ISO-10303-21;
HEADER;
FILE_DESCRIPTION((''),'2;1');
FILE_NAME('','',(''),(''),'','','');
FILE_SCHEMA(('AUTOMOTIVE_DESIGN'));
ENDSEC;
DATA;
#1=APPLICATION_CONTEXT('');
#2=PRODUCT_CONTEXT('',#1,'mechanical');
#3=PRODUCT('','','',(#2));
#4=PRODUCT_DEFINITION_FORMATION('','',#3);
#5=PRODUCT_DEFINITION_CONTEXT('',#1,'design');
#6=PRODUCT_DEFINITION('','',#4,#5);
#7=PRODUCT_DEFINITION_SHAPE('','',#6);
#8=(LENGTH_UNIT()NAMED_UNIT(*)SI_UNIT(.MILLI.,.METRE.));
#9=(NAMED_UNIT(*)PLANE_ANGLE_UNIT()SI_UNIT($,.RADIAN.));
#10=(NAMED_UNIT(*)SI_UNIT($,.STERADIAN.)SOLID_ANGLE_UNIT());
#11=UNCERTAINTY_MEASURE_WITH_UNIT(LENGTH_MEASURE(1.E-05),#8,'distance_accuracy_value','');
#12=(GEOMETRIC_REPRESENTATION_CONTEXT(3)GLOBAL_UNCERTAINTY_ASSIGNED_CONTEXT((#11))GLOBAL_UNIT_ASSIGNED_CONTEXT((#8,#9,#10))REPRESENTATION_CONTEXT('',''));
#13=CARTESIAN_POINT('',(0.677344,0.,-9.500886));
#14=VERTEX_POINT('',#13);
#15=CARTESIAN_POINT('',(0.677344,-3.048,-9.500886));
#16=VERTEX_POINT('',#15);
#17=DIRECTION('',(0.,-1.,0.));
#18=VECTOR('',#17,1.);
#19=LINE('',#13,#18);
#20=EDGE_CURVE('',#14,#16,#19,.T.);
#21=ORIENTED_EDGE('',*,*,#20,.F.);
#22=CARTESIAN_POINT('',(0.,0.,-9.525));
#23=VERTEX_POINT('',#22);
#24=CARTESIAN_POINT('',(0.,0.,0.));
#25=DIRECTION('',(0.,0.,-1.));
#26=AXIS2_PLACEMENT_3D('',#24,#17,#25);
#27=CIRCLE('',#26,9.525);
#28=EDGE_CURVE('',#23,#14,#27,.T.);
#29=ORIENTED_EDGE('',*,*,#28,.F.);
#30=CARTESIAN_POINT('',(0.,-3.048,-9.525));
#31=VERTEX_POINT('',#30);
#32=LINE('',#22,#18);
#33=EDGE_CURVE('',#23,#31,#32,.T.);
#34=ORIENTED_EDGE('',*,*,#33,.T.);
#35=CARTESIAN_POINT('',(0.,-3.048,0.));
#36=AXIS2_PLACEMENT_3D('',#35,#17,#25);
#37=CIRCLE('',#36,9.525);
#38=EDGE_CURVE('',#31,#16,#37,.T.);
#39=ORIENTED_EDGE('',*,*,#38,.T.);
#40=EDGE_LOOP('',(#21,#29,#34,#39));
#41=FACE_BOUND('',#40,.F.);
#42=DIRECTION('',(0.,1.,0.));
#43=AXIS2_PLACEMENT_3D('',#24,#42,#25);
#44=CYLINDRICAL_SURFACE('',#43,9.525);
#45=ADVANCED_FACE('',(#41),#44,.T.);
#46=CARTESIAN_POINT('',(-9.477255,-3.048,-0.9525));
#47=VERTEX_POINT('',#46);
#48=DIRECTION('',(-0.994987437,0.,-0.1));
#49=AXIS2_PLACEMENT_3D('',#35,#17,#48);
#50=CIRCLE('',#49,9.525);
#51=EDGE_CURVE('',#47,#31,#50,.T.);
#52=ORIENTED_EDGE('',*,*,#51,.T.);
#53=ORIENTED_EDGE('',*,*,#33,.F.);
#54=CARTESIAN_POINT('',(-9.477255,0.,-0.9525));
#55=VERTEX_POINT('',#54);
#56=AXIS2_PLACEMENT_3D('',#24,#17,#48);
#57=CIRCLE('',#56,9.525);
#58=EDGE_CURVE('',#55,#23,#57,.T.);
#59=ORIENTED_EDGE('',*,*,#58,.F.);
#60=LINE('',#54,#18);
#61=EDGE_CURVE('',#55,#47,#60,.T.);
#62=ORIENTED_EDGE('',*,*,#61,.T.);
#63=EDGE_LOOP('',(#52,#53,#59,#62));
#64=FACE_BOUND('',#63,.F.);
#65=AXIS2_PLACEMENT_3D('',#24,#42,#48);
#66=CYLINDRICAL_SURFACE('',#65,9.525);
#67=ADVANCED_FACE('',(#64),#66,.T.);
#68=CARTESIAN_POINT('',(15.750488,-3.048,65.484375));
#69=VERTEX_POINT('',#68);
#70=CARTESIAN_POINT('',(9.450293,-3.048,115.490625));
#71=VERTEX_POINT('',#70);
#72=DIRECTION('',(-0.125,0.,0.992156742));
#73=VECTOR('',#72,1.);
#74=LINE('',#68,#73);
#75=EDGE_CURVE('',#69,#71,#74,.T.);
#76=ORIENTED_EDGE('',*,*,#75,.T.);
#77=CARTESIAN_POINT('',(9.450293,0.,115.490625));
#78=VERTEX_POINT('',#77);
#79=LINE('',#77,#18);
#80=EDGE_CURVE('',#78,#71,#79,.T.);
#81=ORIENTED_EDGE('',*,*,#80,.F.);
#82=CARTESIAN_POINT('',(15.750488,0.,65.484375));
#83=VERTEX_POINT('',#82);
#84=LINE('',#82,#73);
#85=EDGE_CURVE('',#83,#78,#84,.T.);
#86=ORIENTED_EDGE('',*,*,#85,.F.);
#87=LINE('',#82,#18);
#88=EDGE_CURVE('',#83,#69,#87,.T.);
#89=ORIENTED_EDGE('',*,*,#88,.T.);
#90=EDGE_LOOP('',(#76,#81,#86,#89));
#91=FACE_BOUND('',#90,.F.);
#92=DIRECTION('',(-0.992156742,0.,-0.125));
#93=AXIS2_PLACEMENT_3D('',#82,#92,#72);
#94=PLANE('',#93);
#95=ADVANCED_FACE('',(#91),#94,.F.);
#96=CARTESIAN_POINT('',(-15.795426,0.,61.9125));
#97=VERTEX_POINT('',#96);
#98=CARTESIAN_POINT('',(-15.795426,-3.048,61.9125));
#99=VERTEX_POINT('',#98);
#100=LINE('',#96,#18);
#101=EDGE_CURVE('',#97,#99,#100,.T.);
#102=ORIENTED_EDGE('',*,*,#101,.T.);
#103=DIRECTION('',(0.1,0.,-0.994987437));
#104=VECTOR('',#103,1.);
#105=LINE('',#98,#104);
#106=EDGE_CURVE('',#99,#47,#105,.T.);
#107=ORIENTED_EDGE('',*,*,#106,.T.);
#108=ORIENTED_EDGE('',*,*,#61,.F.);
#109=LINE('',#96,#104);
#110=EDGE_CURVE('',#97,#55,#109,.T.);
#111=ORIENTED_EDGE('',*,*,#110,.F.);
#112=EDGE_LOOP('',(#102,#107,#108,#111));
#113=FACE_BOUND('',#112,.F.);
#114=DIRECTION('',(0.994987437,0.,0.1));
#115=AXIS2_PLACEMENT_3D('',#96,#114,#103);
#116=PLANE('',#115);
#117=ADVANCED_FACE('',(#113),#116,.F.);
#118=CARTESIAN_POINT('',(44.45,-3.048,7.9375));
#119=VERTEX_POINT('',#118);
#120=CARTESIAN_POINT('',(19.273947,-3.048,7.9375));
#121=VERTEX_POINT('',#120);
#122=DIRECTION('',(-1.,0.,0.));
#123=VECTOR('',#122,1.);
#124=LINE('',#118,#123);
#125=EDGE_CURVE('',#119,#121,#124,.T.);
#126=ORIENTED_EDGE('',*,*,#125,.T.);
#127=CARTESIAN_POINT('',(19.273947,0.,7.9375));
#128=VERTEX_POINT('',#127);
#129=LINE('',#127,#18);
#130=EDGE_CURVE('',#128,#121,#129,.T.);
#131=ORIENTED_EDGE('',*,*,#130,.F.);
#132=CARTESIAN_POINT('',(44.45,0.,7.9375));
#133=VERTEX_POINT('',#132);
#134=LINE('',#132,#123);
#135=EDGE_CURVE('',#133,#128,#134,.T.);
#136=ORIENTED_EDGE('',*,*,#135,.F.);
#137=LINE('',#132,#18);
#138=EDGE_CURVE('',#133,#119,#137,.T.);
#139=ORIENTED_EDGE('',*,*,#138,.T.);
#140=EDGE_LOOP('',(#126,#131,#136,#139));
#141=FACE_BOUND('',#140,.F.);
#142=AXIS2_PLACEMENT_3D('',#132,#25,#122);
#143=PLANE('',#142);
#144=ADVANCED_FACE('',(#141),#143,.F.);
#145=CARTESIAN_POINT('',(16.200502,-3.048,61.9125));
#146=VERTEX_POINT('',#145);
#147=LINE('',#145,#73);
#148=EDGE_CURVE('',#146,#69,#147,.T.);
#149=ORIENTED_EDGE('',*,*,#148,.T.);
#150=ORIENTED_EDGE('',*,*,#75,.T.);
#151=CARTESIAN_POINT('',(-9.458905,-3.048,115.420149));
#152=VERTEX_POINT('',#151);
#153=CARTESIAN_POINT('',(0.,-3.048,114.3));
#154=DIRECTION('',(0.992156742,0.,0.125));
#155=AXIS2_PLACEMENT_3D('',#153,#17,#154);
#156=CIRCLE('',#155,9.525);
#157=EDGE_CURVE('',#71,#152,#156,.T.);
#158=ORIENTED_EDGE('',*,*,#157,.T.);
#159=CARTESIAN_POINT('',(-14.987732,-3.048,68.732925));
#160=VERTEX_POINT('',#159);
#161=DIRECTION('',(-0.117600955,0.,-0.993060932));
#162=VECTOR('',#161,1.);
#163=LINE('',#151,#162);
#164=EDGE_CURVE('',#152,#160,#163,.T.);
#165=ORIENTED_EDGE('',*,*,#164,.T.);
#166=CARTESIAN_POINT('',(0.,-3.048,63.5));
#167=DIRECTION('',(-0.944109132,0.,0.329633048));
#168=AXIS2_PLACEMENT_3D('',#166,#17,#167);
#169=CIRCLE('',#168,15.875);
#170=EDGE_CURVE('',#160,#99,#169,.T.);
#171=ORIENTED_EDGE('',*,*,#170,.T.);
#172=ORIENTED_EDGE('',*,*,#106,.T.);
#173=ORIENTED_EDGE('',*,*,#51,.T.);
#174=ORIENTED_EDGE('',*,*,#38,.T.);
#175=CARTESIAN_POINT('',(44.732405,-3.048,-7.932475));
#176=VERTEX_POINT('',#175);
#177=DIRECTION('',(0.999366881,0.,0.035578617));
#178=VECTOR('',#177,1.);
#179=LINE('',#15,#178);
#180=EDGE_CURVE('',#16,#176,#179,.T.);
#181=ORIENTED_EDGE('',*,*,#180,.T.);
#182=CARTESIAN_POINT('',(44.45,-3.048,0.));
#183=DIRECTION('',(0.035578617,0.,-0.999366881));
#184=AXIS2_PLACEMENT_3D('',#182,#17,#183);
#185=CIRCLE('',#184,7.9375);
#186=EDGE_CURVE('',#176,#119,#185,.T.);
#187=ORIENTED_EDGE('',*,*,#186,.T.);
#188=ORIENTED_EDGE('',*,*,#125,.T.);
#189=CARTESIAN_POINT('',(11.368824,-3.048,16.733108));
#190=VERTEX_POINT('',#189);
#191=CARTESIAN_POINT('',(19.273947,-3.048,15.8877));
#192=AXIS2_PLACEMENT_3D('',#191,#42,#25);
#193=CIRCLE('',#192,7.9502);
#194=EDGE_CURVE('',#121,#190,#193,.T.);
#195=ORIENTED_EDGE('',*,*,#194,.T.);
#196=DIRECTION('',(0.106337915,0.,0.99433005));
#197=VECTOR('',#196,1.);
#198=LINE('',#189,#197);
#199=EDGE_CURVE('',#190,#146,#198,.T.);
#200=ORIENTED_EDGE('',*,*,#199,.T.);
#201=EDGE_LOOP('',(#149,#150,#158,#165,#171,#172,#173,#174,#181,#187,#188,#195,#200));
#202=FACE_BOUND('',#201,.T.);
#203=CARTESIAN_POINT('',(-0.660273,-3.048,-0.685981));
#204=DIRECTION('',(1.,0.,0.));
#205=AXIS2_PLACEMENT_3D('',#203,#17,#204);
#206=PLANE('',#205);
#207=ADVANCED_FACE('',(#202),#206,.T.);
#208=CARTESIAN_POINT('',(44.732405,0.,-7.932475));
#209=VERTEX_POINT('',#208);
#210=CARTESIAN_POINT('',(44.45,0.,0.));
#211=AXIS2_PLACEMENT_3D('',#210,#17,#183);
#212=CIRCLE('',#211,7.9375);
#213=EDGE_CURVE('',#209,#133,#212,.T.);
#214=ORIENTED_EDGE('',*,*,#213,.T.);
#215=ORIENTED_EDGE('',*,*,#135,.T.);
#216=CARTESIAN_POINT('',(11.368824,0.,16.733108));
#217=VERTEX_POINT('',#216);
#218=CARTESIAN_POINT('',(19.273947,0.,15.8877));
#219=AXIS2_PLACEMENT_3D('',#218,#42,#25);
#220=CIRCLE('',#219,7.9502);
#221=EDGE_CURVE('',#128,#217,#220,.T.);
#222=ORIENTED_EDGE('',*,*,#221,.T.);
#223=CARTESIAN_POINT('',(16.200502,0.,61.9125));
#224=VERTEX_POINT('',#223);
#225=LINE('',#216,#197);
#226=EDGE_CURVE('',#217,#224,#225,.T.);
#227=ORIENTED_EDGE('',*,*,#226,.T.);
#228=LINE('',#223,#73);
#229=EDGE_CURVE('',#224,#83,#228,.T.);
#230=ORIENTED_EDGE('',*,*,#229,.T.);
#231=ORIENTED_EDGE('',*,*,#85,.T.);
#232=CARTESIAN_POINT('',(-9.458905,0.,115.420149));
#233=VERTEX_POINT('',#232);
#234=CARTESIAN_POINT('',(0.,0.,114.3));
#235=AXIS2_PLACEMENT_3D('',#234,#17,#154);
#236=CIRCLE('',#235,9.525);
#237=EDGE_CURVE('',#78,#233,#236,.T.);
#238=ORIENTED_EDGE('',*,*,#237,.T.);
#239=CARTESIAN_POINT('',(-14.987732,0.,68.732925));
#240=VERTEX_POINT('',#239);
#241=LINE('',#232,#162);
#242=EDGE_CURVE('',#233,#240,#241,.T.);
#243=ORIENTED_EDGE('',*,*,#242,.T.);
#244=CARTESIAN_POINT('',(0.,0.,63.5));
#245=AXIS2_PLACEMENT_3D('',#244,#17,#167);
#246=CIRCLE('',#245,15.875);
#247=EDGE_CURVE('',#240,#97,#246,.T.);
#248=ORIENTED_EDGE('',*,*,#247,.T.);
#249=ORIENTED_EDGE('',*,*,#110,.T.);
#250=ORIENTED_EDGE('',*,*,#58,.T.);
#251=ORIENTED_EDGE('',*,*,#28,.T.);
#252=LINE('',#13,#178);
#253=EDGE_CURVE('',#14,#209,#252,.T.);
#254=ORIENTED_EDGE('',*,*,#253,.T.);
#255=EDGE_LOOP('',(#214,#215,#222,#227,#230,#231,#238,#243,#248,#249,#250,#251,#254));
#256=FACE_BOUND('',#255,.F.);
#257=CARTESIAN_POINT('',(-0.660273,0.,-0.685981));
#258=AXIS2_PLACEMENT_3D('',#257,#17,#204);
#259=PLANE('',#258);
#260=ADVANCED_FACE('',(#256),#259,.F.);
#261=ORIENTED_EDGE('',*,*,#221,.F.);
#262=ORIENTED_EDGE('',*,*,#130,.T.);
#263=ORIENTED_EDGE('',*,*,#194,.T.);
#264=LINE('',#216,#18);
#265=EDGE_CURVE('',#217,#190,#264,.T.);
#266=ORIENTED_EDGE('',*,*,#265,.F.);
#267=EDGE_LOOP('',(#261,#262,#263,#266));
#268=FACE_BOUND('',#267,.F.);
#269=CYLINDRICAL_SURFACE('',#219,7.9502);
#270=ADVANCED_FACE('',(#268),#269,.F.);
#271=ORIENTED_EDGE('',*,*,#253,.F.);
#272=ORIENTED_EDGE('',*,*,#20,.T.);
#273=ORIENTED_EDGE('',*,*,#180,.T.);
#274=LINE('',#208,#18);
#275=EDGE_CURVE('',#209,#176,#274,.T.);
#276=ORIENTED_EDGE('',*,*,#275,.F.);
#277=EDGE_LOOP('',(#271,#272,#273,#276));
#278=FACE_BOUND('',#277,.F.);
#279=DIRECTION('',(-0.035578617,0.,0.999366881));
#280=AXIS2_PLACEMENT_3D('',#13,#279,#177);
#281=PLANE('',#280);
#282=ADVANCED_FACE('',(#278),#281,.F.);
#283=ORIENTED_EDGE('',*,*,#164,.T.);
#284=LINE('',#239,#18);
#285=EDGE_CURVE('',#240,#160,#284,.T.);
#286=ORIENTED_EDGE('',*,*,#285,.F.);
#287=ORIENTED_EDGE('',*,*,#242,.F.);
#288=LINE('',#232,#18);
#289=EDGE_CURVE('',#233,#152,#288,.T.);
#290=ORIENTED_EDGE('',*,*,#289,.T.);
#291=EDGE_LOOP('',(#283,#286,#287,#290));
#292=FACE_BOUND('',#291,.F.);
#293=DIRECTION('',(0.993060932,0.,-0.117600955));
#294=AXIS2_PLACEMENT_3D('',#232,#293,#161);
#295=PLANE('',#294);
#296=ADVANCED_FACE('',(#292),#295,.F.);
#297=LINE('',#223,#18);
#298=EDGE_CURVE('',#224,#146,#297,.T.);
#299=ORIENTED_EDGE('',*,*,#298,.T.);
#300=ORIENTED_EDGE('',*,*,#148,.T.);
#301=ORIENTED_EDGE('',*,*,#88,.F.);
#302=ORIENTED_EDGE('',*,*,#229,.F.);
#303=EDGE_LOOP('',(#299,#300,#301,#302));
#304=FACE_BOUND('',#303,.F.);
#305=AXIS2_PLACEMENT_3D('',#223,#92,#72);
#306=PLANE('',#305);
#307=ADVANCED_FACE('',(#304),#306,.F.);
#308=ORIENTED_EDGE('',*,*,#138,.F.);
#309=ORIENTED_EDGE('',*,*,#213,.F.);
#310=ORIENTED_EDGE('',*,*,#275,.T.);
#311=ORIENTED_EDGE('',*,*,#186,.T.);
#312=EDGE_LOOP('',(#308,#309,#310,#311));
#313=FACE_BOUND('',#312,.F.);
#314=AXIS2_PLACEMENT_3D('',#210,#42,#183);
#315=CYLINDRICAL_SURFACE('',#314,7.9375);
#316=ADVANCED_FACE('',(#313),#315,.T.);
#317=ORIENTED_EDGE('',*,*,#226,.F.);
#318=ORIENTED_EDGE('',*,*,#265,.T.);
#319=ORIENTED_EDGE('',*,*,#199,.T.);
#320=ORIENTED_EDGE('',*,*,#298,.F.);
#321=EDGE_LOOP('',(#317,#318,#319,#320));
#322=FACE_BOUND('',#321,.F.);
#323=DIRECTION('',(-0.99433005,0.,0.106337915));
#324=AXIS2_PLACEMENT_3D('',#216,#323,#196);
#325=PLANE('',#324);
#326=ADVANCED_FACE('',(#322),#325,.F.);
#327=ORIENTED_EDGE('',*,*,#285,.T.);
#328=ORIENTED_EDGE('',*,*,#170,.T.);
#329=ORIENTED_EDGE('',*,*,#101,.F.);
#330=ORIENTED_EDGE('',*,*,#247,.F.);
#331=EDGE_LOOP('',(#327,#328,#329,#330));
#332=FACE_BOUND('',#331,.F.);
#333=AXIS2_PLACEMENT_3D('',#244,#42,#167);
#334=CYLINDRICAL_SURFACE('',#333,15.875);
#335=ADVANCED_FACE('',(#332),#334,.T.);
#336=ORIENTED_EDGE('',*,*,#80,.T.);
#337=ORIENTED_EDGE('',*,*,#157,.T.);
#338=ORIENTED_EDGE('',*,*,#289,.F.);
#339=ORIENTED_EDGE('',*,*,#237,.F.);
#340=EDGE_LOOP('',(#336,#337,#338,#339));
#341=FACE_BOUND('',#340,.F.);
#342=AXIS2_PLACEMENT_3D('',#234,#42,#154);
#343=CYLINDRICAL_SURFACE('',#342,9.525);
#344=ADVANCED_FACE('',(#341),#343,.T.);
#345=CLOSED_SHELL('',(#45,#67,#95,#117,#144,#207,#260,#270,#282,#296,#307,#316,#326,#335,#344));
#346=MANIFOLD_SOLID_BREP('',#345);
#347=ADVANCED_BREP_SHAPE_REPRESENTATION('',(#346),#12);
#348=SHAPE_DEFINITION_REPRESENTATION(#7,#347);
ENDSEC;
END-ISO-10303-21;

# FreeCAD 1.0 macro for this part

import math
import FreeCAD as App
import Part
import Sketcher

V = App.Vector
Q = App.Units.Quantity

doc = App.newDocument("Part")
body = doc.addObject("PartDesign::Body", "Body")

# Sketch on XZ plane
sketch1 = doc.addObject("Sketcher::SketchObject", "Sketch")
body.addObject(sketch1)
sketch1.AttachmentSupport = (doc.XZ_Plane, [""])
sketch1.MapMode = "FlatFace"
sketch1.addGeometry([
    Part.LineSegment(V(0.677344, -9.500886, 0), V(44.732405, -7.932475, 0)),  # 0
    Part.ArcOfCircle(Part.Circle(V(44.45, 0, 0), V(0, 0, 1), 7.9375), math.radians(-87.961065), math.radians(90)),  # 1
    Part.LineSegment(V(44.45, 7.9375, 0), V(19.273947, 7.9375, 0)),  # 2
    Part.ArcOfCircle(Part.Circle(V(19.273947, 15.8877, 0), V(0, 0, 1), 7.9502), math.radians(173.895745), math.radians(270)),  # 3
    Part.LineSegment(V(11.368824, 16.733108, 0), V(16.200502, 61.9125, 0)),  # 4
    Part.LineSegment(V(16.200502, 61.9125, 0), V(15.750488, 65.484375, 0)),  # 5
    Part.LineSegment(V(15.750488, 65.484375, 0), V(9.450293, 115.490625, 0)),  # 6
    Part.ArcOfCircle(Part.Circle(V(0, 114.3, 0), V(0, 0, 1), 9.525), math.radians(7.180756), math.radians(173.246333)),  # 7
    Part.LineSegment(V(-9.458905, 115.420149, 0), V(-14.987732, 68.732925, 0)),  # 8
    Part.ArcOfCircle(Part.Circle(V(0, 63.5, 0), V(0, 0, 1), 15.875), math.radians(160.753495), math.radians(185.73917)),  # 9
    Part.LineSegment(V(-15.795426, 61.9125, 0), V(-9.477255, -0.9525, 0)),  # 10
    Part.ArcOfCircle(Part.Circle(V(0, 0, 0), V(0, 0, 1), 9.525), math.radians(-174.26083), math.radians(-90)),  # 11
    Part.ArcOfCircle(Part.Circle(V(0, 0, 0), V(0, 0, 1), 9.525), math.radians(-90), math.radians(-85.92213)),  # 12
], False)
sketch1.addConstraint([
    Sketcher.Constraint("Coincident", 0, 2, 1, 1),
    Sketcher.Constraint("Coincident", 1, 2, 2, 1),
    Sketcher.Constraint("Coincident", 2, 2, 3, 2),
    Sketcher.Constraint("Coincident", 3, 1, 4, 1),
    Sketcher.Constraint("Coincident", 4, 2, 5, 1),
    Sketcher.Constraint("Coincident", 5, 2, 6, 1),
    Sketcher.Constraint("Coincident", 6, 2, 7, 1),
    Sketcher.Constraint("Coincident", 7, 2, 8, 1),
    Sketcher.Constraint("Coincident", 8, 2, 9, 1),
    Sketcher.Constraint("Coincident", 9, 2, 10, 1),
    Sketcher.Constraint("Coincident", 10, 2, 11, 1),
    Sketcher.Constraint("Coincident", 11, 2, 12, 1),
    Sketcher.Constraint("Coincident", 12, 2, 0, 1),
    Sketcher.Constraint("Horizontal", 2),
    Sketcher.Constraint("Coincident", 11, 3, -1, 1),
    Sketcher.Constraint("Coincident", 12, 3, -1, 1),
    Sketcher.Constraint("PointOnObject", 1, 3, -1),
    Sketcher.Constraint("PointOnObject", 7, 3, -2),
    Sketcher.Constraint("PointOnObject", 9, 3, -2),
    Sketcher.Constraint("PointOnObject", 11, 2, -2),
    Sketcher.Constraint("Radius", 1, Q("0.3125 in")),
    Sketcher.Constraint("Radius", 3, Q("0.313 in")),
    Sketcher.Constraint("Radius", 7, Q("0.375 in")),
    Sketcher.Constraint("Radius", 9, Q("0.625 in")),
    Sketcher.Constraint("Radius", 11, Q("0.375 in")),
    Sketcher.Constraint("DistanceY", 9, 3, 7, 3, Q("2 in")),
    Sketcher.Constraint("DistanceY", -1, 1, 7, 3, Q("4.5 in")),
    Sketcher.Constraint("DistanceX", -1, 1, 1, 3, Q("1.75 in")),
    Sketcher.Constraint("DistanceX", -1, 1, 1, 2, Q("1.75 in")),
    Sketcher.Constraint("DistanceY", 10, 2, 2, 2, Q("0.35 in")),
    Sketcher.Constraint("DistanceY", -1, 1, 4, 2, Q("2.4375 in")),
    Sketcher.Constraint("DistanceY", -1, 1, 5, 2, Q("2.578125 in")),
    Sketcher.Constraint("DistanceY", -1, 1, 6, 2, Q("4.546875 in")),
    Sketcher.Constraint("DistanceY", -1, 1, 9, 2, Q("2.4375 in")),
    Sketcher.Constraint("DistanceX", 7, 2, 6, 2, 18.909198),
    Sketcher.Constraint("DistanceX", 10, 2, 12, 2, 10.154599),
    Sketcher.Constraint("Distance", 0, 44.082972),
    Sketcher.Constraint("Distance", 5, 3.600111),
    Sketcher.Constraint("DistanceX", 2, 2, 2, 1, 25.176053),
    Sketcher.Constraint("DistanceX", -1, 1, 5, 2, 15.750488),
    Sketcher.Constraint("DistanceX", 3, 3, 0, 2, 25.458458),
    Sketcher.Constraint("DistanceX", 6, 2, 3, 1, 1.918531),
    Sketcher.Constraint("DistanceX", 8, 2, 5, 2, 30.738221),
])
pad1 = doc.addObject("PartDesign::Pad", "Pad")
body.addObject(pad1)
pad1.Profile = sketch1
pad1.Length = Q("0.12 in")

doc.recompute()
